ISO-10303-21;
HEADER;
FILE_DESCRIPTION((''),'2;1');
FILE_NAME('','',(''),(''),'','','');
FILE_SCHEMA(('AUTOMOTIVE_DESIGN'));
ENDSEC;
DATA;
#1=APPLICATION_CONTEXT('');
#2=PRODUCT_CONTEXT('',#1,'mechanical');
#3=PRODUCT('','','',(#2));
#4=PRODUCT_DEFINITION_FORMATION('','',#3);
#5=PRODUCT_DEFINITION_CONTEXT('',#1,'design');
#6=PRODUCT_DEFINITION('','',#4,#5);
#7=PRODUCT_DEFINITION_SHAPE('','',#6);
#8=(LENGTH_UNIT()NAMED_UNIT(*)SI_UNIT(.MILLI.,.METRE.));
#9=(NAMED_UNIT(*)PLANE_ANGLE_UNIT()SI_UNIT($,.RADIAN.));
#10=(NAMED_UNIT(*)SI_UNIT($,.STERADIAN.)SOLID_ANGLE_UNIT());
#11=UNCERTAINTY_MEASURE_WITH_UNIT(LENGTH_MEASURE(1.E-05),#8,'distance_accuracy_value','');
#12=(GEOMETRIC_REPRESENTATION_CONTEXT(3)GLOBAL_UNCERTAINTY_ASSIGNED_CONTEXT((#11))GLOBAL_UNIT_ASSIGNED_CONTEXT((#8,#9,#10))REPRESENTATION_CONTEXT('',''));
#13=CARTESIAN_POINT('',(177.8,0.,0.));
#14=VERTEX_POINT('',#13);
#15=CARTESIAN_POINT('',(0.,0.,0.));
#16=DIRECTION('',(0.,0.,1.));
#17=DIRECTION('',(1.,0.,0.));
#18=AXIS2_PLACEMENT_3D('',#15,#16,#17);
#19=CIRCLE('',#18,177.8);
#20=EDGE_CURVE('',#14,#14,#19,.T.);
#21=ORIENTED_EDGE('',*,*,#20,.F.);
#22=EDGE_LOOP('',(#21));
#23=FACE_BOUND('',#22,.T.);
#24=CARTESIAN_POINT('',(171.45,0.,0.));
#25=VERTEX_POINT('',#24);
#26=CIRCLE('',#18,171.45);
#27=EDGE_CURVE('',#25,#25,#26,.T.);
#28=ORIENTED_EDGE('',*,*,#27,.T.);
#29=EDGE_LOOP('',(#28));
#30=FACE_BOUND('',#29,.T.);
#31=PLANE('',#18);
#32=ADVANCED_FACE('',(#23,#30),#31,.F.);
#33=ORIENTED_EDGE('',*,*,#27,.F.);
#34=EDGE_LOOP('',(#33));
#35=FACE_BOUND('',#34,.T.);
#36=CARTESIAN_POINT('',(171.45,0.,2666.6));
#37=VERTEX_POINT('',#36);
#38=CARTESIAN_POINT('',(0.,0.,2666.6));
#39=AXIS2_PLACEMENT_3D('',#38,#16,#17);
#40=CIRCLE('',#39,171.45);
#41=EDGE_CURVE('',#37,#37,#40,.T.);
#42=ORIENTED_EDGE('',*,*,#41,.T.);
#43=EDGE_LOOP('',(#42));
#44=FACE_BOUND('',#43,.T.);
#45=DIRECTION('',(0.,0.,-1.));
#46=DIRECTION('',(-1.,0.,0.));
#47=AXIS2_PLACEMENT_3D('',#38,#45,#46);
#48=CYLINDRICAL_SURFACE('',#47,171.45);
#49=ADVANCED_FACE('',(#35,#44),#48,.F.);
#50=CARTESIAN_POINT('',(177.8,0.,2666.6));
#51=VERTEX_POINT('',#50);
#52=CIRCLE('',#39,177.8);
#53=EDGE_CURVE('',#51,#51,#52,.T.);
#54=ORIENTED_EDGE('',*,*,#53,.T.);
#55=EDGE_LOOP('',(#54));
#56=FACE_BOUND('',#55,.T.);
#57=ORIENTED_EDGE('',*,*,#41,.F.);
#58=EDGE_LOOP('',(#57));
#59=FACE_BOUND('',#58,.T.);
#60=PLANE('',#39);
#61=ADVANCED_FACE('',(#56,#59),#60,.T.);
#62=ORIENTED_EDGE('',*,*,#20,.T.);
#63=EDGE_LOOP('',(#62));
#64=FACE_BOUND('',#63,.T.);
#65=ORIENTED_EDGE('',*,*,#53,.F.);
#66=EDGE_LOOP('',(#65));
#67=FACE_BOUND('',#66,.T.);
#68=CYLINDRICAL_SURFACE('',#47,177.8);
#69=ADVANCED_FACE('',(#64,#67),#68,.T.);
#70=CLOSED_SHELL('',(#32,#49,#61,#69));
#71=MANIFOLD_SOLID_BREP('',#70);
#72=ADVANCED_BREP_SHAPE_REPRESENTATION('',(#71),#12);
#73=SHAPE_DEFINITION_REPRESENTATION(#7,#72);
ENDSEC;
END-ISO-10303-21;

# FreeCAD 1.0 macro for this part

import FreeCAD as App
import Part
import Sketcher

V = App.Vector
Q = App.Units.Quantity

doc = App.newDocument("Part")
body = doc.addObject("PartDesign::Body", "Body")

sketch1 = body.newObject("Sketcher::SketchObject", "Sketch")
sketch1.AttachmentSupport = (doc.getObject("XY_Plane"), [""])
sketch1.MapMode = "FlatFace"
sketch1.addGeometry([
    Part.Circle(V(0, 0, 0), V(0, 0, 1), 178),
    Part.Circle(V(0, 0, 0), V(0, 0, 1), 171),
], False)
sketch1.addConstraint([
    Sketcher.Constraint("Coincident", 0, 3, -1, 1),
    Sketcher.Constraint("Coincident", 1, 3, -1, 1),
    Sketcher.Constraint("Diameter", 0, Q("14 in")),
    Sketcher.Constraint("Diameter", 1, Q("13.5 in")),
])
pad1 = body.newObject("PartDesign::Pad", "Pad")
pad1.Profile = sketch1
pad1.Length = 2666.6

doc.recompute()
